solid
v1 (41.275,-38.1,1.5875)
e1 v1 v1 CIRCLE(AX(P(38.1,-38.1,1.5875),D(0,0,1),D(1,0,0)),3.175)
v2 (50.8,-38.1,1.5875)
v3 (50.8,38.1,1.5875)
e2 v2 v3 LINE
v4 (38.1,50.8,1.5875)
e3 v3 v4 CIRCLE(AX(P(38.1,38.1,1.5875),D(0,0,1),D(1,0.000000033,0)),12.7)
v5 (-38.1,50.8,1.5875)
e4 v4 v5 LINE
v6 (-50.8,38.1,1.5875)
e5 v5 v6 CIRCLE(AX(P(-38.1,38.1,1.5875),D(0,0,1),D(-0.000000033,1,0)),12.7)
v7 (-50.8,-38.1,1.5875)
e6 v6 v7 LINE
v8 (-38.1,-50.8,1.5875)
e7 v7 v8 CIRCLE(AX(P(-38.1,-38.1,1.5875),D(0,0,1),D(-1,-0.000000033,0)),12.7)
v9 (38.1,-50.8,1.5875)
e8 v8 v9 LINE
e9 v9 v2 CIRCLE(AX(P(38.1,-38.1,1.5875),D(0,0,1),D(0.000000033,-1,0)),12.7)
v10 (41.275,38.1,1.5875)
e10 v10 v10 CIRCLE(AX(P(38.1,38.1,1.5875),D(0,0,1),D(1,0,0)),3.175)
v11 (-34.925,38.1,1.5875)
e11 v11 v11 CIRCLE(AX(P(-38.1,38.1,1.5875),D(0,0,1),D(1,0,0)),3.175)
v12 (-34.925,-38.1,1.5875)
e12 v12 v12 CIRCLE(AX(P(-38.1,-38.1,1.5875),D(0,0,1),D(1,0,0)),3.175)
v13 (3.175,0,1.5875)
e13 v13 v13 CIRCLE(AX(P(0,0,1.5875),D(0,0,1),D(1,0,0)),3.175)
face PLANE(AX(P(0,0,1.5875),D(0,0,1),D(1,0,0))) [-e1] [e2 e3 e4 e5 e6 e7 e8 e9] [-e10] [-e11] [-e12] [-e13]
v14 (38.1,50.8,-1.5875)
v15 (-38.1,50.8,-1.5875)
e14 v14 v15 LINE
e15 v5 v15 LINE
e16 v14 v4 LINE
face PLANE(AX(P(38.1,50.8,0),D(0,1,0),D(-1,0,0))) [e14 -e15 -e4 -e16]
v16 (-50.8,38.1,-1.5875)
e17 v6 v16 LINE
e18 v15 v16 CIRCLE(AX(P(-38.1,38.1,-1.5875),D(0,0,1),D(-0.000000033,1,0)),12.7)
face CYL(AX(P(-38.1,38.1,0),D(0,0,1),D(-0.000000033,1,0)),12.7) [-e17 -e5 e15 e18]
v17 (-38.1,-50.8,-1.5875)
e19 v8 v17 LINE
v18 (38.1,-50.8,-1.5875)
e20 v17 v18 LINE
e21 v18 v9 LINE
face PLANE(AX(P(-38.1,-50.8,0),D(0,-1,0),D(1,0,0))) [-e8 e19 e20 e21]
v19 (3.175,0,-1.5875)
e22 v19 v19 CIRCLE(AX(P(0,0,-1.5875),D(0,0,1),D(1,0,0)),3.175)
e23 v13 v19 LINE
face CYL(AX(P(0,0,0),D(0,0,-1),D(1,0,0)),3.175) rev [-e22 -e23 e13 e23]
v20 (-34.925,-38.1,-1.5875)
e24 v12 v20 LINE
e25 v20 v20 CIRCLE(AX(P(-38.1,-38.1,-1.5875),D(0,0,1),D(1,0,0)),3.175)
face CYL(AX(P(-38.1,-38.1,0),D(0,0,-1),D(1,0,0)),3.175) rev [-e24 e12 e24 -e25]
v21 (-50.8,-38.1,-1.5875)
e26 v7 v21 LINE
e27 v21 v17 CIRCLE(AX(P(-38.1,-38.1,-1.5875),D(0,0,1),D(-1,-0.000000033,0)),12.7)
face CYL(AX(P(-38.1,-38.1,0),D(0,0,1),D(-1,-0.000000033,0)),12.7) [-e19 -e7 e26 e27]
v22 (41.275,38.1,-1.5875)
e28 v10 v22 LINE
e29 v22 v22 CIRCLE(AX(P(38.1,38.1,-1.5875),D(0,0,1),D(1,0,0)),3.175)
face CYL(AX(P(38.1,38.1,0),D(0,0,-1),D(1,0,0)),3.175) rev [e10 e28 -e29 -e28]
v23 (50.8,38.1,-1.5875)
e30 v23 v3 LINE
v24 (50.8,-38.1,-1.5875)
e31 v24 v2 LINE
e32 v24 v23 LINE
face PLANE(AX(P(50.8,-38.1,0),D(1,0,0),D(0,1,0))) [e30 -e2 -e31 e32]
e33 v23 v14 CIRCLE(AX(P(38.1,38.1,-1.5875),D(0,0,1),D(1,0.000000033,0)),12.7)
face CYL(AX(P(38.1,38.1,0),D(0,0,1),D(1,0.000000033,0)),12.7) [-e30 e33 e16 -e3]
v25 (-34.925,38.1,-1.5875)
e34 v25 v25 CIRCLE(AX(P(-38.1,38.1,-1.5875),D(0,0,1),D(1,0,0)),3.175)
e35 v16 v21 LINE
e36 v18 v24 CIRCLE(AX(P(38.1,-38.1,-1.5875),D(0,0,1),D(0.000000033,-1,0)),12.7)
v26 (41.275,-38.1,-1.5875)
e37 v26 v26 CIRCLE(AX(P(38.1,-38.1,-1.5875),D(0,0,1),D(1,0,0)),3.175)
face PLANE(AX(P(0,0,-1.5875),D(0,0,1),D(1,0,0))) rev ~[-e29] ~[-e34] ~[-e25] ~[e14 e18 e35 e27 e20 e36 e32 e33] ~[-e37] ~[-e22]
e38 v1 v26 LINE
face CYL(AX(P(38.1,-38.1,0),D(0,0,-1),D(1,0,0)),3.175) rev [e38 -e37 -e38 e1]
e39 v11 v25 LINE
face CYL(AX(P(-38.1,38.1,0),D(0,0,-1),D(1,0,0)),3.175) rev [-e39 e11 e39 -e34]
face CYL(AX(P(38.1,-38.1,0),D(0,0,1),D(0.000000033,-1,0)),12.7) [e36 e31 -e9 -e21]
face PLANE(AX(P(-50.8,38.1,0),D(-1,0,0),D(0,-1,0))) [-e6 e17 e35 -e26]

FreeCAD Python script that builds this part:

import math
import FreeCAD as App
import Part
import Sketcher
from FreeCAD import Vector
Q = App.Units.Quantity

doc = App.newDocument("Part")
body = doc.addObject("PartDesign::Body", "Body")

# Sketch on XY plane
sketch1 = doc.addObject("Sketcher::SketchObject", "Sketch")
body.addObject(sketch1)
sketch1.AttachmentSupport = (doc.XY_Plane, [""])
sketch1.MapMode = "FlatFace"
sketch1.addGeometry([
    Part.LineSegment(Vector(-38.1, -50.8, 0), Vector(38.1, -50.8, 0)),  # 0
    Part.ArcOfCircle(Part.Circle(Vector(38.1, -38.1, 0), Vector(0, 0, 1), 12.7), math.radians(-90), math.radians(0)),  # 1
    Part.LineSegment(Vector(50.8, -38.1, 0), Vector(50.8, 38.1, 0)),  # 2
    Part.ArcOfCircle(Part.Circle(Vector(38.1, 38.1, 0), Vector(0, 0, 1), 12.7), math.radians(0), math.radians(90)),  # 3
    Part.LineSegment(Vector(38.1, 50.8, 0), Vector(-38.1, 50.8, 0)),  # 4
    Part.ArcOfCircle(Part.Circle(Vector(-38.1, 38.1, 0), Vector(0, 0, 1), 12.7), math.radians(90), math.radians(180)),  # 5
    Part.LineSegment(Vector(-50.8, 38.1, 0), Vector(-50.8, -38.1, 0)),  # 6
    Part.ArcOfCircle(Part.Circle(Vector(-38.1, -38.1, 0), Vector(0, 0, 1), 12.7), math.radians(-180), math.radians(-90)),  # 7
    Part.Circle(Vector(-38.1, -38.1, 0), Vector(0, 0, 1), 3.2),  # 8
    Part.Circle(Vector(38.1, -38.1, 0), Vector(0, 0, 1), 3.2),  # 9
    Part.Circle(Vector(-38.1, 38.1, 0), Vector(0, 0, 1), 3.2),  # 10
    Part.Circle(Vector(0, 0, 0), Vector(0, 0, 1), 3.2),  # 11
    Part.Circle(Vector(38.1, 38.1, 0), Vector(0, 0, 1), 3.2),  # 12
], False)
sketch1.addConstraint([
    Sketcher.Constraint("Tangent", 0, 2, 1, 1),
    Sketcher.Constraint("Tangent", 1, 2, 2, 1),
    Sketcher.Constraint("Tangent", 2, 2, 3, 1),
    Sketcher.Constraint("Tangent", 3, 2, 4, 1),
    Sketcher.Constraint("Tangent", 4, 2, 5, 1),
    Sketcher.Constraint("Tangent", 5, 2, 6, 1),
    Sketcher.Constraint("Tangent", 6, 2, 7, 1),
    Sketcher.Constraint("Tangent", 7, 2, 0, 1),
    Sketcher.Constraint("Horizontal", 0),
    Sketcher.Constraint("Vertical", 2),
    Sketcher.Constraint("Horizontal", 4),
    Sketcher.Constraint("Vertical", 6),
    Sketcher.Constraint("Coincident", 11, 3, -1, 1),
    Sketcher.Constraint("Coincident", 8, 3, 7, 3),
    Sketcher.Constraint("Coincident", 9, 3, 1, 3),
    Sketcher.Constraint("Coincident", 10, 3, 5, 3),
    Sketcher.Constraint("Coincident", 12, 3, 3, 3),
    Sketcher.Constraint("Equal", 1, 3),
    Sketcher.Constraint("Equal", 3, 5),
    Sketcher.Constraint("Equal", 5, 7),
    Sketcher.Constraint("Equal", 8, 9),
    Sketcher.Constraint("Equal", 9, 10),
    Sketcher.Constraint("Equal", 10, 11),
    Sketcher.Constraint("Equal", 11, 12),
    Sketcher.Constraint("Symmetric", 1, 3, 5, 3, -1, 1),
    Sketcher.Constraint("Equal", 4, 2),
    Sketcher.Constraint("Radius", 1, Q("0.5 in")),
    Sketcher.Constraint("Diameter", 8, Q("0.25 in")),
    Sketcher.Constraint("DistanceX", 0, 1, 0, 2, Q("3 in")),
])
pad1 = doc.addObject("PartDesign::Pad", "Pad")
body.addObject(pad1)
pad1.Profile = sketch1
pad1.Length = Q("0.125 in")
pad1.Midplane = True

doc.recompute()
